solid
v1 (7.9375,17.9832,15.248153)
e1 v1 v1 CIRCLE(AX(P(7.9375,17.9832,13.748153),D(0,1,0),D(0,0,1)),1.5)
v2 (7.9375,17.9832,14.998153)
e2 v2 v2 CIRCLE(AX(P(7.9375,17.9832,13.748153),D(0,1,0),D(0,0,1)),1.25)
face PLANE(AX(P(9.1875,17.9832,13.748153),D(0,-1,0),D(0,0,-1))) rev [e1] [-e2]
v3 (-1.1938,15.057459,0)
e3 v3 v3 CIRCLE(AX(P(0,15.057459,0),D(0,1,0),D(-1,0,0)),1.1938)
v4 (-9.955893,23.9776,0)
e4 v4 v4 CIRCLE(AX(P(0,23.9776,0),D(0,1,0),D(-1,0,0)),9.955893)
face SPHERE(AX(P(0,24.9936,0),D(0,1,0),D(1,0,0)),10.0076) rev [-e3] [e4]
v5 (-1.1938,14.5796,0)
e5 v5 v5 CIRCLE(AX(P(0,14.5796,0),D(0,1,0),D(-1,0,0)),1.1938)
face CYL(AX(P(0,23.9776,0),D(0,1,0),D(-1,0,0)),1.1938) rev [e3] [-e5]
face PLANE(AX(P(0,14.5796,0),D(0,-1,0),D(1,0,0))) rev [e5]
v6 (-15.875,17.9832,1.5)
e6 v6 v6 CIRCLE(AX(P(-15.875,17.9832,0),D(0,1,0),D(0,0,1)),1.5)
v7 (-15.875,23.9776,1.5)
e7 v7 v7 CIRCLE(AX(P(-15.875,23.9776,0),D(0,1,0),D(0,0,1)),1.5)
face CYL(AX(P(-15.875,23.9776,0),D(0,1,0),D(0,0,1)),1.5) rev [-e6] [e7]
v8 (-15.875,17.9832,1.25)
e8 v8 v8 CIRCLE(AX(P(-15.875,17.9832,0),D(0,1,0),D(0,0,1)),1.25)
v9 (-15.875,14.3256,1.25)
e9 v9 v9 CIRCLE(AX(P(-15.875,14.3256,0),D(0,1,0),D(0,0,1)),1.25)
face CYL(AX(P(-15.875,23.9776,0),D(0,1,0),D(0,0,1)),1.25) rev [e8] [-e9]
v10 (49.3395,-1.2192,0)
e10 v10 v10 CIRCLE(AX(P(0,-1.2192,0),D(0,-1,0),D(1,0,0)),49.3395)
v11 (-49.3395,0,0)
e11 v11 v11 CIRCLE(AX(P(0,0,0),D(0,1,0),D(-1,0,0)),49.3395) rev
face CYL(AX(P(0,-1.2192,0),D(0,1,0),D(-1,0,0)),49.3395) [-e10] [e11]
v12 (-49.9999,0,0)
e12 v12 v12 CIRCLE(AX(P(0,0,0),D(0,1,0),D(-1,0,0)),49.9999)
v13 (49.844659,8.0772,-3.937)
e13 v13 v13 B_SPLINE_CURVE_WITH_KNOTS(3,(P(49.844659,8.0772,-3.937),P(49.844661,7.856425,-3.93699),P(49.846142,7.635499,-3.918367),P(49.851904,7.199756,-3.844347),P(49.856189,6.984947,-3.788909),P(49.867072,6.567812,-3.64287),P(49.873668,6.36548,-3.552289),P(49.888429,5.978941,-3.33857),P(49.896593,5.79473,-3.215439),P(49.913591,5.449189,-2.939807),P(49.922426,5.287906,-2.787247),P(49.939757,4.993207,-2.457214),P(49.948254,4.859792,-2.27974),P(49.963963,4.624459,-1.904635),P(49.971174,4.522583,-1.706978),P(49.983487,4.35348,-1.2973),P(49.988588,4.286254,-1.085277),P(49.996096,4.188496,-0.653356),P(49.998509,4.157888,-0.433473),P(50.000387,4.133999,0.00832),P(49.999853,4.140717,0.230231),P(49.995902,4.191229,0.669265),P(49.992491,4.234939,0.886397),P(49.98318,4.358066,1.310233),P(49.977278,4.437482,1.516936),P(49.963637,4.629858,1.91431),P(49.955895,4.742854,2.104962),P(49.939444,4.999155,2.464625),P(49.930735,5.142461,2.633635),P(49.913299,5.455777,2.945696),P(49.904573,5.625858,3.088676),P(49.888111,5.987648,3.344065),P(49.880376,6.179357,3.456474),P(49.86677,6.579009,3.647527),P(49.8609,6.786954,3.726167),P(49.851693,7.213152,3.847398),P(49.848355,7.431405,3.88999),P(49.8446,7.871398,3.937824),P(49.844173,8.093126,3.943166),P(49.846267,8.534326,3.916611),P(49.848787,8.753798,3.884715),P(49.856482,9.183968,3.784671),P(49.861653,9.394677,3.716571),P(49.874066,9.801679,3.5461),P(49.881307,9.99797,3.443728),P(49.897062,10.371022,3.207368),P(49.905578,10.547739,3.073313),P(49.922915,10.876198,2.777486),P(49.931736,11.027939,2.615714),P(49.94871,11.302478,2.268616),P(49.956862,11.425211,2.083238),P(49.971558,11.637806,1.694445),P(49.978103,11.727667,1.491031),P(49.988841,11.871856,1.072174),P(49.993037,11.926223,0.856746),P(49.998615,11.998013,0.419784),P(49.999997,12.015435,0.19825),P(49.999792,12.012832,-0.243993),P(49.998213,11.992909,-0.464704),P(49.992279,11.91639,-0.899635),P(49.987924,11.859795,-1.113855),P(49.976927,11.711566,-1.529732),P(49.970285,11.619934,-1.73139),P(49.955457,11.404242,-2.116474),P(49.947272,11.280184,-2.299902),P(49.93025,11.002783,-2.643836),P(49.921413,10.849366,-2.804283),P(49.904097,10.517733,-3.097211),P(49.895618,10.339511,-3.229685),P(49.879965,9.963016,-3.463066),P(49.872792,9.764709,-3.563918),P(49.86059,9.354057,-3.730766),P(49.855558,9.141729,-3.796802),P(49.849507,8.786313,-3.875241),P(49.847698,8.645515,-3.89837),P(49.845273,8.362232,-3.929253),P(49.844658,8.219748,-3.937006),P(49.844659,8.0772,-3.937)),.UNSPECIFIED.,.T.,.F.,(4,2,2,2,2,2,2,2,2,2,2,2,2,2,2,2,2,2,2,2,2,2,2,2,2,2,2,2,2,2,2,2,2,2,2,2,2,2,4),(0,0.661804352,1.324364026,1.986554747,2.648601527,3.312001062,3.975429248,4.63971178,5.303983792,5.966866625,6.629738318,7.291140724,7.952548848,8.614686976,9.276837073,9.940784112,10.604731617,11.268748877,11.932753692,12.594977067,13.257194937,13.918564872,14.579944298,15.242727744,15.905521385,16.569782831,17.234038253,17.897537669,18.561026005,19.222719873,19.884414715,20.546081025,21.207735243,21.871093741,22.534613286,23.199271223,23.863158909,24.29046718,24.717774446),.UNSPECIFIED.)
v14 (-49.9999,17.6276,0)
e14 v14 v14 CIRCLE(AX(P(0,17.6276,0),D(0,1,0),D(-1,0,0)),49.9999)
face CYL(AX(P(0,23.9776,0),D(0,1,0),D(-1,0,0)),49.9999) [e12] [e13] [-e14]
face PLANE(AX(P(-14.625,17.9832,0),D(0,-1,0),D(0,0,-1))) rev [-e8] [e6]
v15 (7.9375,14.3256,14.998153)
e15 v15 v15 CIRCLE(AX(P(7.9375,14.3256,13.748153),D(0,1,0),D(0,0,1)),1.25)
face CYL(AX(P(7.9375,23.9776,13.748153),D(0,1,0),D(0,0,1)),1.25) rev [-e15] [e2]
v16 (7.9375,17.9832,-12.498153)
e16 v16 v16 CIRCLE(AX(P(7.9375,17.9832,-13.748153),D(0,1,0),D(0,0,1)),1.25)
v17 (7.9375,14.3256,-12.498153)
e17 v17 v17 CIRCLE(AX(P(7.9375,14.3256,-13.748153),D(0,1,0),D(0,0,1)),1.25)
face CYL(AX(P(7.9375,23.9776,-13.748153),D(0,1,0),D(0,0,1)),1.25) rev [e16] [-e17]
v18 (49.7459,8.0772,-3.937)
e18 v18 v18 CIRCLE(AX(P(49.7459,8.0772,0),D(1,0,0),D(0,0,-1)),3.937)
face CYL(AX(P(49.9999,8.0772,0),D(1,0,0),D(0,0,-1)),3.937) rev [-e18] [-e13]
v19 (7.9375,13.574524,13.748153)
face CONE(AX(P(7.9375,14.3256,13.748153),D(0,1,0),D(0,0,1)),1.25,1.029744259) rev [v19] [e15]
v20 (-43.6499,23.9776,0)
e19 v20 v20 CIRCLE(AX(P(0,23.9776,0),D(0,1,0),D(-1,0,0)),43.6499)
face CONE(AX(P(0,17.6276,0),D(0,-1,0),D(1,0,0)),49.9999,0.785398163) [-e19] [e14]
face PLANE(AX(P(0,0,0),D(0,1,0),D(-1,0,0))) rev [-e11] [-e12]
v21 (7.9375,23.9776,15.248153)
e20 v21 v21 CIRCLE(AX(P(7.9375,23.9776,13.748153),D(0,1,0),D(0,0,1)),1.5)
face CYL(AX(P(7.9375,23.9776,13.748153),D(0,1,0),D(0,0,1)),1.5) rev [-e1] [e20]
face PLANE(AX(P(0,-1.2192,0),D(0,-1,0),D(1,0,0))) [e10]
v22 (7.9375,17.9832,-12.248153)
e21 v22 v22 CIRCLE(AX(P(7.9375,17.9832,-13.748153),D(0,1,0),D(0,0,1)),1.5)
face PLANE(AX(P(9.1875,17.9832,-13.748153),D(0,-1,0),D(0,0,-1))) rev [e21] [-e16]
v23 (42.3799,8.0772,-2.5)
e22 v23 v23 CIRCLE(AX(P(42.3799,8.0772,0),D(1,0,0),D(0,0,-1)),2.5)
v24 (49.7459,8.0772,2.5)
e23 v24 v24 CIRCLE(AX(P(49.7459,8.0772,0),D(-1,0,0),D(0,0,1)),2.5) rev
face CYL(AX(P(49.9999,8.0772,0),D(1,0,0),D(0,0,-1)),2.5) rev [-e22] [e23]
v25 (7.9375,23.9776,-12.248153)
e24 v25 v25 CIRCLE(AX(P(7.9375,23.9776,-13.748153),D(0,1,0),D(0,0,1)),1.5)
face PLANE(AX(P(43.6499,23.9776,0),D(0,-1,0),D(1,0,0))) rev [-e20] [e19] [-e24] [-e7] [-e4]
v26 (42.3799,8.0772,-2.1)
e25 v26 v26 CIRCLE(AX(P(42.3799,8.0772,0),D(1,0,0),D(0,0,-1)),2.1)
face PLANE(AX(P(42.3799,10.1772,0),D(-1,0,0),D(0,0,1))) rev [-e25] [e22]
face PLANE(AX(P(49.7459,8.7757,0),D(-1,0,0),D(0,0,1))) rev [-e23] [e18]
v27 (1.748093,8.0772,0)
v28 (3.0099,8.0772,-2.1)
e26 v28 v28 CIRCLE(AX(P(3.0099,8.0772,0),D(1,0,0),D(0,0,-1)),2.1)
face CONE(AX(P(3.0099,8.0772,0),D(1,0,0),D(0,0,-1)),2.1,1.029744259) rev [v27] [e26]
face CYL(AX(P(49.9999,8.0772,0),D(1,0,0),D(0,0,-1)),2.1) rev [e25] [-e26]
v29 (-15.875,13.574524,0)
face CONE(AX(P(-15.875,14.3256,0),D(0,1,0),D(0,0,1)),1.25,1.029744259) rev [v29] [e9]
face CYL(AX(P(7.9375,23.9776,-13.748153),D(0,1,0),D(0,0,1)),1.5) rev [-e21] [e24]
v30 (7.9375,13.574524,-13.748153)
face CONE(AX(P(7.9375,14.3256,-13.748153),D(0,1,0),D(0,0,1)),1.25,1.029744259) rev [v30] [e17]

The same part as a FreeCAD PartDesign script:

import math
import FreeCAD as App
import Part
import Sketcher

V = App.Vector
Q = App.Units.Quantity


def add_polygon(sketch, points):
    """Adds a closed chain of lines whose ends are joined by coincident constraints."""
    first, n = sketch.GeometryCount, len(points)
    for a, b in zip(points, points[1:] + points[:1]):
        sketch.addGeometry(Part.LineSegment(App.Vector(*a, 0), App.Vector(*b, 0)), False)
    for i in range(n):
        sketch.addConstraint(Sketcher.Constraint("Coincident", first + i, 2, first + (i + 1) % n, 1))

doc = App.newDocument("Part")
body = doc.addObject("PartDesign::Body", "Body")

# Sketch on XY plane
sketch1 = doc.addObject("Sketcher::SketchObject", "Sketch")
body.addObject(sketch1)
sketch1.AttachmentSupport = (doc.XY_Plane, [""])
sketch1.MapMode = "FlatFace"
sketch1.addGeometry(Part.LineSegment(V(0, 0, 0), V(50, 0, 0)), False)
sketch1.addGeometry(Part.LineSegment(V(50, 0, 0), V(50, 17.63, 0)), False)
sketch1.addGeometry(Part.LineSegment(V(50, 17.63, 0), V(43.65, 23.98, 0)), False)
sketch1.addGeometry(Part.LineSegment(V(43.65, 23.98, 0), V(9.96, 23.98, 0)), False)
sketch1.addGeometry(Part.ArcOfCircle(Part.Circle(V(0, 24.99, 0), V(0, 0, 1), 10.01), math.radians(-83), math.radians(-6)), False)
sketch1.addGeometry(Part.LineSegment(V(1.19, 15.06, 0), V(1.19, 14.58, 0)), False)
sketch1.addGeometry(Part.LineSegment(V(1.19, 14.58, 0), V(0, 14.58, 0)), False)
sketch1.addGeometry(Part.LineSegment(V(0, 14.58, 0), V(0, 0, 0)), False)
sketch1.addConstraint(Sketcher.Constraint("Coincident", 0, 2, 1, 1))
sketch1.addConstraint(Sketcher.Constraint("Coincident", 1, 2, 2, 1))
sketch1.addConstraint(Sketcher.Constraint("Coincident", 2, 2, 3, 1))
sketch1.addConstraint(Sketcher.Constraint("Coincident", 3, 2, 4, 2))
sketch1.addConstraint(Sketcher.Constraint("Coincident", 4, 1, 5, 1))
sketch1.addConstraint(Sketcher.Constraint("Coincident", 5, 2, 6, 1))
sketch1.addConstraint(Sketcher.Constraint("Coincident", 6, 2, 7, 1))
sketch1.addConstraint(Sketcher.Constraint("Coincident", 7, 2, 0, 1))
sketch1.addConstraint(Sketcher.Constraint("Horizontal", 0))
sketch1.addConstraint(Sketcher.Constraint("Vertical", 1))
sketch1.addConstraint(Sketcher.Constraint("Horizontal", 3))
sketch1.addConstraint(Sketcher.Constraint("Vertical", 5))
sketch1.addConstraint(Sketcher.Constraint("Horizontal", 6))
sketch1.addConstraint(Sketcher.Constraint("Vertical", 7))
sketch1.addConstraint(Sketcher.Constraint("Coincident", 7, 2, -1, 1))
sketch1.addConstraint(Sketcher.Constraint("PointOnObject", 4, 3, -2))
sketch1.addConstraint(Sketcher.Constraint("Angle", 2, Q("135 deg")))
sketch1.addConstraint(Sketcher.Constraint("Radius", 4, Q("0.394 in")))
sketch1.addConstraint(Sketcher.Constraint("DistanceX", 6, 2, 6, 1, Q("0.047 in")))
sketch1.addConstraint(Sketcher.Constraint("DistanceY", 1, 1, 1, 2, Q("0.694 in")))
sketch1.addConstraint(Sketcher.Constraint("DistanceY", 7, 2, 7, 1, Q("0.574 in")))
sketch1.addConstraint(Sketcher.Constraint("DistanceY", 1, 2, 4, 3, Q("0.29 in")))
sketch1.addConstraint(Sketcher.Constraint("DistanceX", 2, 2, 1, 2, Q("0.25 in")))
sketch1.addConstraint(Sketcher.Constraint("DistanceX", 0, 1, 0, 2, Q("1.9685 in")))
revolution = doc.addObject("PartDesign::Revolution", "Revolution")
body.addObject(revolution)
revolution.Profile = sketch1
revolution.ReferenceAxis = (sketch1, ["V_Axis"])
revolution.Angle = 360

# Sketch on YZ plane
sketch2 = doc.addObject("Sketcher::SketchObject", "Sketch001")
body.addObject(sketch2)
sketch2.AttachmentSupport = (doc.YZ_Plane, [""])
sketch2.MapMode = "FlatFace"
sketch2.AttachmentOffset = App.Placement(V(0, 0, 1.9685 * 25.4), App.Rotation())
sketch2.addGeometry(Part.Circle(V(8.1, 0, 0), V(0, 0, 1), 2.1), False)
sketch2.addConstraint(Sketcher.Constraint("PointOnObject", 0, 3, -1))
sketch2.addConstraint(Sketcher.Constraint("Diameter", 0, 4.2))
sketch2.addConstraint(Sketcher.Constraint("DistanceX", -1, 1, 0, 3, Q("0.318 in")))
doc.recompute()
hole = doc.addObject("PartDesign::Hole", "Hole")
body.addObject(hole)
hole.Profile = sketch2
hole.ThreadType = "None"
hole.Diameter = 4.2
hole.DepthType = "Dimension"
hole.Depth = Q("1.85 in")
hole.DrillPoint = "Angled"
hole.DrillPointAngle = 118
hole.HoleCutType = "Counterbore"
hole.HoleCutDiameter = 5
hole.HoleCutDepth = Q("0.3 in")

# Sketch on YZ plane
sketch3 = doc.addObject("Sketcher::SketchObject", "Sketch002")
body.addObject(sketch3)
sketch3.AttachmentSupport = (doc.YZ_Plane, [""])
sketch3.MapMode = "FlatFace"
sketch3.AttachmentOffset = App.Placement(V(0, 0, -0.625 * 25.4), App.Rotation())
add_polygon(sketch3, [(13.57, 0), (23.98, 0), (23.98, 1.5), (17.98, 1.5), (17.98, 1.25), (14.33, 1.25)])  # lines 0-5
sketch3.addConstraint(Sketcher.Constraint("Horizontal", 0))
sketch3.addConstraint(Sketcher.Constraint("Vertical", 1))
sketch3.addConstraint(Sketcher.Constraint("Horizontal", 2))
sketch3.addConstraint(Sketcher.Constraint("Vertical", 3))
sketch3.addConstraint(Sketcher.Constraint("Horizontal", 4))
sketch3.addConstraint(Sketcher.Constraint("PointOnObject", 0, 2, -1))
sketch3.addConstraint(Sketcher.Constraint("Angle", 5, Q("-121 deg")))
sketch3.addConstraint(Sketcher.Constraint("DistanceX", 2, 2, 2, 1, Q("0.236 in")))
sketch3.addConstraint(Sketcher.Constraint("DistanceX", 4, 2, 4, 1, Q("0.144 in")))
sketch3.addConstraint(Sketcher.Constraint("DistanceX", -1, 1, 0, 2, Q("0.944 in")))
sketch3.addConstraint(Sketcher.Constraint("DistanceY", 1, 1, 1, 2, 1.5))
sketch3.addConstraint(Sketcher.Constraint("DistanceY", 3, 2, 3, 1, 0.25))
groove = doc.addObject("PartDesign::Groove", "Groove")
body.addObject(groove)
groove.Profile = sketch3
groove.ReferenceAxis = (sketch3, ["H_Axis"])
groove.Angle = 360
doc.recompute()

polarpattern = doc.addObject("PartDesign::PolarPattern", "PolarPattern")
body.addObject(polarpattern)
polarpattern.Originals = [groove]
polarpattern.Axis = (doc.Y_Axis, [""])
polarpattern.Angle = 360
polarpattern.Occurrences = 3
body.Tip = polarpattern

# Sketch on YZ plane
sketch4 = doc.addObject("Sketcher::SketchObject", "Sketch003")
body.addObject(sketch4)
sketch4.AttachmentSupport = (doc.YZ_Plane, [""])
sketch4.MapMode = "FlatFace"
sketch4.AttachmentOffset = App.Placement(V(0, 0, 1.9685 * 25.4), App.Rotation())
sketch4.addGeometry(Part.Circle(V(8.1, 0, 0), V(0, 0, 1), 0.7), False)
sketch4.addConstraint(Sketcher.Constraint("PointOnObject", 0, 3, -1))
sketch4.addConstraint(Sketcher.Constraint("Diameter", 0, Q("0.055 in")))
sketch4.addConstraint(Sketcher.Constraint("DistanceX", -1, 1, 0, 3, Q("0.318 in")))
doc.recompute()
hole2 = doc.addObject("PartDesign::Hole", "Hole001")
body.addObject(hole2)
hole2.Profile = sketch4
hole2.ThreadType = "None"
hole2.Diameter = Q("0.055 in")
hole2.DepthType = "Dimension"
hole2.Depth = Q("0.25 in")
hole2.DrillPoint = "Angled"
hole2.DrillPointAngle = 118
hole2.HoleCutType = "Counterbore"
hole2.HoleCutDiameter = Q("0.31 in")
hole2.HoleCutDepth = Q("0.01 in")

# Sketch on XZ plane
sketch5 = doc.addObject("Sketcher::SketchObject", "Sketch004")
body.addObject(sketch5)
sketch5.AttachmentSupport = (doc.XZ_Plane, [""])
sketch5.MapMode = "FlatFace"
sketch5.addGeometry(Part.Circle(V(0, 0, 0), V(0, 0, 1), 49), False)
sketch5.addConstraint(Sketcher.Constraint("Coincident", 0, 3, -1, 1))
sketch5.addConstraint(Sketcher.Constraint("Diameter", 0, Q("3.885 in")))
pad1 = doc.addObject("PartDesign::Pad", "Pad")
body.addObject(pad1)
pad1.Profile = sketch5
pad1.Length = Q("0.048 in")

doc.recompute()
